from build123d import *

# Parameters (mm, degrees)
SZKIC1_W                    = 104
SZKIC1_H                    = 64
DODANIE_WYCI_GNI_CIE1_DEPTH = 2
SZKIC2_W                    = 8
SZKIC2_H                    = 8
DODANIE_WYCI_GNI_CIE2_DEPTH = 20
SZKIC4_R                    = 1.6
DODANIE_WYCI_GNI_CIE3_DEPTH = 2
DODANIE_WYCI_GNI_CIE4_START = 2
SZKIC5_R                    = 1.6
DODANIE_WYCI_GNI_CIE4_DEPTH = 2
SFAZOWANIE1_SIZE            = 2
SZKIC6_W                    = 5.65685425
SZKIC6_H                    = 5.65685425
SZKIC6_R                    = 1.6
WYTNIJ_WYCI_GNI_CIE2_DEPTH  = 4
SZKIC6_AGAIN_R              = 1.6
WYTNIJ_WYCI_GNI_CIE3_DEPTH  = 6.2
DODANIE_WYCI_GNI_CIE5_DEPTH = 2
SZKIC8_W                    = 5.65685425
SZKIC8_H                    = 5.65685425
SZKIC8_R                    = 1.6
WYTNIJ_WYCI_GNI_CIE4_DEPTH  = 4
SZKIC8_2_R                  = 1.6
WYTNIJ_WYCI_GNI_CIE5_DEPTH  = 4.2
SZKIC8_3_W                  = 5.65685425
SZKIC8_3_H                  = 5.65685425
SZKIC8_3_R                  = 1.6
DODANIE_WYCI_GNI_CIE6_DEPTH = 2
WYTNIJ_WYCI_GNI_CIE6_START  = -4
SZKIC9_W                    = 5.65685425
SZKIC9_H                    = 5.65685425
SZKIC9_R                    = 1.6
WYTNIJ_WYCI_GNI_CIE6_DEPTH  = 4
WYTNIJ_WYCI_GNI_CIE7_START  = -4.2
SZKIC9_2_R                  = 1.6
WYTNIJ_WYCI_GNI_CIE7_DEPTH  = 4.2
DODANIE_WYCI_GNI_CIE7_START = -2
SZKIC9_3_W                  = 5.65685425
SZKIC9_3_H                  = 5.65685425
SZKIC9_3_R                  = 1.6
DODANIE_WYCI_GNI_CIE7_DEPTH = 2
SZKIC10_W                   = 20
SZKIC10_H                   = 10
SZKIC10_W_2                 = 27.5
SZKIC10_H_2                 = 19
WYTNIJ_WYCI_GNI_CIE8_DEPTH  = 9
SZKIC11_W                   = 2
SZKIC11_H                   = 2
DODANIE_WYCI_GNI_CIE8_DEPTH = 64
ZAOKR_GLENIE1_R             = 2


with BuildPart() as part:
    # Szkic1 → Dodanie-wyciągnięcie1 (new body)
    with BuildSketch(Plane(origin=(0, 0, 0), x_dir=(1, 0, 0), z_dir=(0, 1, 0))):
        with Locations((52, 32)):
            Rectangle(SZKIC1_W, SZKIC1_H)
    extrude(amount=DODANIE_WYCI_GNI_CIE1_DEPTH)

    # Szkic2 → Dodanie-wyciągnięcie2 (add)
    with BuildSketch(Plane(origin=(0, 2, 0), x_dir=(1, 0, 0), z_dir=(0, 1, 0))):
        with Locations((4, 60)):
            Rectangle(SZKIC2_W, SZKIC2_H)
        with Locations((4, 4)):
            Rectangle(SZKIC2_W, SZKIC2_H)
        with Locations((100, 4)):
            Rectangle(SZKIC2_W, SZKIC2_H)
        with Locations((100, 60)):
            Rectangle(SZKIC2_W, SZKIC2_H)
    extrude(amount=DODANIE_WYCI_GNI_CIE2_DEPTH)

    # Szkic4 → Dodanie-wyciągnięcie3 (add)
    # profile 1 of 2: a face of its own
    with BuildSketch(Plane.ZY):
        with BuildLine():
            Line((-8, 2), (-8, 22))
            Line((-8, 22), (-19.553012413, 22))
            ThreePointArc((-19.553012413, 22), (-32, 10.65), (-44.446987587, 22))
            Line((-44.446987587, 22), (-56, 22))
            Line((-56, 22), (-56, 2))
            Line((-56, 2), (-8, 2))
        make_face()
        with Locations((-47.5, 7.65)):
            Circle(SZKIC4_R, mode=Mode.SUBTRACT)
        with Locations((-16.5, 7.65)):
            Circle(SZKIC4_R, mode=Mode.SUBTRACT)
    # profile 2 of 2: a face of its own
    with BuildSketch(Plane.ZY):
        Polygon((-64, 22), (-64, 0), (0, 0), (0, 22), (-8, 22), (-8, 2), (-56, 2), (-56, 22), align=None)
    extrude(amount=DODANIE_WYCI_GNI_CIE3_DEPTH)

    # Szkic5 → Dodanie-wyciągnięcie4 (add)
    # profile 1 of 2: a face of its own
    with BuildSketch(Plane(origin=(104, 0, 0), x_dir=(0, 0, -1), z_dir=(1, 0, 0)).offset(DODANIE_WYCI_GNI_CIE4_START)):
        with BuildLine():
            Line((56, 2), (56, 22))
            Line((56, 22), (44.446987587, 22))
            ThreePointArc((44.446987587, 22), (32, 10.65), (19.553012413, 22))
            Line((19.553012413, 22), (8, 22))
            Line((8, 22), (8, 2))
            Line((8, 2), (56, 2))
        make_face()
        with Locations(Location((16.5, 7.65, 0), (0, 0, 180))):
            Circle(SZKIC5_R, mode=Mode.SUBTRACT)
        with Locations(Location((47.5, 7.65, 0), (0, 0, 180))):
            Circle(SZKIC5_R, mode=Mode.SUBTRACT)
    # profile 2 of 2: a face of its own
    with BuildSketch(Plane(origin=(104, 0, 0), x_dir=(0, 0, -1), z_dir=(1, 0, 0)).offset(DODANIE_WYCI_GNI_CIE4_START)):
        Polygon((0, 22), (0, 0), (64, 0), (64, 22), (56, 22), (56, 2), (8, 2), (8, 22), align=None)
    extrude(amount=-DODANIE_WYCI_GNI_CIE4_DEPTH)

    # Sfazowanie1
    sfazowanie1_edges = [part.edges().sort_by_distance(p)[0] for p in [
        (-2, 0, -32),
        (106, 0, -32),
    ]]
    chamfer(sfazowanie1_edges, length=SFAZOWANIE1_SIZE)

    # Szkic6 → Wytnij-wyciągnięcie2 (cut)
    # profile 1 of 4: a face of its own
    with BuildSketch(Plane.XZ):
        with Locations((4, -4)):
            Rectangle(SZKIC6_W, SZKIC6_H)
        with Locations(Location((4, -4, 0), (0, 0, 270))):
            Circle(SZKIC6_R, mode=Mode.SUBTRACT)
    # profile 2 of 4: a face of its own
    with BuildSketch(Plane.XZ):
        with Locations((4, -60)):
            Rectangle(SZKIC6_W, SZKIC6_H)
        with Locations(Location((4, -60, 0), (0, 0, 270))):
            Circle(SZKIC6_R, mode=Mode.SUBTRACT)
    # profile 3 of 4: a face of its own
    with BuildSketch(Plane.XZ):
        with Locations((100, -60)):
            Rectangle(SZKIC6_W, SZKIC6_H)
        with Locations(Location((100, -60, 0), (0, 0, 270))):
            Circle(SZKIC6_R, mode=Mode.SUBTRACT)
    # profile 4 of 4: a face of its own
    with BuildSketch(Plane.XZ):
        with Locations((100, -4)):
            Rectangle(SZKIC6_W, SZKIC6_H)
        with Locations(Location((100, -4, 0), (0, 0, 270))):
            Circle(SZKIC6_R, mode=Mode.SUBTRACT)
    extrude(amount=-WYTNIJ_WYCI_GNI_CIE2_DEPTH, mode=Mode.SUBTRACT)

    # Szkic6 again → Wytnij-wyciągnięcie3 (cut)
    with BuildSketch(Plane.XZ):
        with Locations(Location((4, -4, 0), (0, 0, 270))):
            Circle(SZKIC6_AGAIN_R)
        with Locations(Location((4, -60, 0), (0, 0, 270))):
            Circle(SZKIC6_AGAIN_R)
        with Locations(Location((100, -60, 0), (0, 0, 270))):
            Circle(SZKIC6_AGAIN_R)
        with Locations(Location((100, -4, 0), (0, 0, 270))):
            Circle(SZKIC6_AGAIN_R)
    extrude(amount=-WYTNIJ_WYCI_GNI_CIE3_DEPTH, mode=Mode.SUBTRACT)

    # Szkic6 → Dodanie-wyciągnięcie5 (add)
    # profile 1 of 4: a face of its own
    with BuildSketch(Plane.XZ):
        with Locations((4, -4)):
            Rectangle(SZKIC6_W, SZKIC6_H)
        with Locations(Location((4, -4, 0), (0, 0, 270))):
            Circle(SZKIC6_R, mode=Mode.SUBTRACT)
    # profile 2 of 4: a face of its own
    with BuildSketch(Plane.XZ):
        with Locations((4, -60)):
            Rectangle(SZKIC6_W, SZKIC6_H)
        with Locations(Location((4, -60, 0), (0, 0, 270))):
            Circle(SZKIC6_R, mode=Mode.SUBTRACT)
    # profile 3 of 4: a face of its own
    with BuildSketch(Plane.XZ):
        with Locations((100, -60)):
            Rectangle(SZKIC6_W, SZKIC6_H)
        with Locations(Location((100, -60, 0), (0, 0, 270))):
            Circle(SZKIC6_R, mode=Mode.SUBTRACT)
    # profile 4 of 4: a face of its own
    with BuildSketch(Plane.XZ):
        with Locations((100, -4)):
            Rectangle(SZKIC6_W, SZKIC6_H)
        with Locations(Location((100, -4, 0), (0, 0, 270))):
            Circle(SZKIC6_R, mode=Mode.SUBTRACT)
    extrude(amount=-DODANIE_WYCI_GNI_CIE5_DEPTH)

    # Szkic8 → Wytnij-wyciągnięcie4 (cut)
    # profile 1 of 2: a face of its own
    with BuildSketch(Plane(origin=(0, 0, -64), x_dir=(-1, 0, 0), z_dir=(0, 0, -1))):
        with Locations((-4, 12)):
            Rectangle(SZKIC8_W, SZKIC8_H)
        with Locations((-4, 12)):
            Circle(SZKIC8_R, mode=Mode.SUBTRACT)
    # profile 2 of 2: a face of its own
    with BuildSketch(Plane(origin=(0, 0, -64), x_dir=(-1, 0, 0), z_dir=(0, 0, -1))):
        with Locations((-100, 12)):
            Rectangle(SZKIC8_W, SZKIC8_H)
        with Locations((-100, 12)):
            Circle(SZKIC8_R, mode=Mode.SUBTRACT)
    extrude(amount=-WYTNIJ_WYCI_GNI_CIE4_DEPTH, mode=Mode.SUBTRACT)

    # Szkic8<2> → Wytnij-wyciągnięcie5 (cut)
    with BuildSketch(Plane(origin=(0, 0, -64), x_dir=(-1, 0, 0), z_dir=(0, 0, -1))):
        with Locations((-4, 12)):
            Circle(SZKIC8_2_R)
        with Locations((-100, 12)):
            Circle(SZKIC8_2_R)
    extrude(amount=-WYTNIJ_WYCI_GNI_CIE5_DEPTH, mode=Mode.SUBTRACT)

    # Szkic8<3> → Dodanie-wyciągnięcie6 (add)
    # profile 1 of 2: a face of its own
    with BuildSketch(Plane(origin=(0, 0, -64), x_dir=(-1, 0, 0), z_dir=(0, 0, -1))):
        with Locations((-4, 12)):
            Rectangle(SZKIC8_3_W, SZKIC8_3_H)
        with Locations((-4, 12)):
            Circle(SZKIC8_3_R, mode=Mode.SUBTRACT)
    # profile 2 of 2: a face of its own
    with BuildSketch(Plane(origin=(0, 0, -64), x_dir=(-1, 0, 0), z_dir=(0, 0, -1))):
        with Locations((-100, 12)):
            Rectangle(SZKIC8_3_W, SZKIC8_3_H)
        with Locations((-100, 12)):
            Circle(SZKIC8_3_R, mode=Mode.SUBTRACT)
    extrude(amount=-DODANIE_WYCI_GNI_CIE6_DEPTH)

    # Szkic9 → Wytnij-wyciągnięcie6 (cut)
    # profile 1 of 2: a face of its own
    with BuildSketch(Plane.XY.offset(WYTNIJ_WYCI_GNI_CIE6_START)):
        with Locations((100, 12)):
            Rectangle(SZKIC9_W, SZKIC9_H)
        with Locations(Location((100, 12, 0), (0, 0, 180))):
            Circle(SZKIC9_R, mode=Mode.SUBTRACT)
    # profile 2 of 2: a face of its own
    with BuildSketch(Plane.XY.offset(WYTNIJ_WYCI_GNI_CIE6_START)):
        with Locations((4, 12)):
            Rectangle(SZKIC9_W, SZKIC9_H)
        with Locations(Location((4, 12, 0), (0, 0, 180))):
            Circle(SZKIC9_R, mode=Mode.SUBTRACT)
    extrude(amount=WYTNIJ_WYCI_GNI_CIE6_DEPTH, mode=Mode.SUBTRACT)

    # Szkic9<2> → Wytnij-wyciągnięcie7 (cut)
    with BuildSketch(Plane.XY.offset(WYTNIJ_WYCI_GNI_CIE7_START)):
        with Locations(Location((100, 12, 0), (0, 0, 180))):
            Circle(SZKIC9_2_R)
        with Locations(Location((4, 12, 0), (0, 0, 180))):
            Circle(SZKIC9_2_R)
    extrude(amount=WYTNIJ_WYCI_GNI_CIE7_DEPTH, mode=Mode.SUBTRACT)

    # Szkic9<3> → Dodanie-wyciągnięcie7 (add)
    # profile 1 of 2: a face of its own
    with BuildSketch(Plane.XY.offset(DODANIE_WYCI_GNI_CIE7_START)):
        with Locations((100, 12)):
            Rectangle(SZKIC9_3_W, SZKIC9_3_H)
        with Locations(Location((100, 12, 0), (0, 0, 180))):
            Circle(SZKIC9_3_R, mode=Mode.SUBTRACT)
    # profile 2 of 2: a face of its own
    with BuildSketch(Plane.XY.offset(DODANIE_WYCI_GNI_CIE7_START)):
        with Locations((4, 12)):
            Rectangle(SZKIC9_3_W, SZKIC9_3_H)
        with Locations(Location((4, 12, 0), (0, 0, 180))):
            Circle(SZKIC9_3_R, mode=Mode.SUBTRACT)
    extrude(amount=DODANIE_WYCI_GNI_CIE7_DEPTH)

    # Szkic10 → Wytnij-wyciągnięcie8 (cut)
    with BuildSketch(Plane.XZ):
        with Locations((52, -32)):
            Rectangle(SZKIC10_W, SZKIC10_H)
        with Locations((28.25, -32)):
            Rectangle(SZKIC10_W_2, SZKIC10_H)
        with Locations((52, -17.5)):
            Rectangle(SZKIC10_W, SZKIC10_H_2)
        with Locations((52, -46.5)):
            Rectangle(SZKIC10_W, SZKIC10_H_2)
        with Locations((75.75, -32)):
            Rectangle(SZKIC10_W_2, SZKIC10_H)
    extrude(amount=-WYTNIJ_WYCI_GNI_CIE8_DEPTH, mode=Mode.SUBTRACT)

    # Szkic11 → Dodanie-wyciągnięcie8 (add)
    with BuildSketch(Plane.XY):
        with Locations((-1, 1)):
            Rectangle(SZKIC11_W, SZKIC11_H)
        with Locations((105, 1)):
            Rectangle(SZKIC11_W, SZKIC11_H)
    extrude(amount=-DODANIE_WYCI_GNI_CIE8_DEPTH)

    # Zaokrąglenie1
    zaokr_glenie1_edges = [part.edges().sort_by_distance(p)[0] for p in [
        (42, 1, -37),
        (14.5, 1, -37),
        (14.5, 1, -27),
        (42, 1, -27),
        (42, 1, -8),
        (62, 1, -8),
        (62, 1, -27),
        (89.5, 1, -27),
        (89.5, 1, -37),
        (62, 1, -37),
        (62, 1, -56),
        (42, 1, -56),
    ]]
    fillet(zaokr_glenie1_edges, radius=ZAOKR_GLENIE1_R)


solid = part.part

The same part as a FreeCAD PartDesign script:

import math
import FreeCAD as App
import Part
import Sketcher

V = App.Vector


def edges_at(feature, points):
    """Names of the edges that pass closest to the given points."""
    edges = feature.Shape.Edges
    near = lambda p: min(range(len(edges)), key=lambda i: edges[i].distToShape(Part.Vertex(*p))[0])
    return sorted({f"Edge{near(p) + 1}" for p in points})

doc = App.newDocument("Part")
body = doc.addObject("PartDesign::Body", "Body")

# Sketch on XZ plane
sketch1 = body.newObject("Sketcher::SketchObject", "Sketch")
sketch1.AttachmentSupport = (doc.getObject("XZ_Plane"), [""])
sketch1.MapMode = "FlatFace"
sketch1.addGeometry([
    Part.LineSegment(V(0, -64, 0), V(0, 0, 0)),
    Part.LineSegment(V(0, 0, 0), V(104, 0, 0)),
    Part.LineSegment(V(104, 0, 0), V(104, -64, 0)),
    Part.LineSegment(V(104, -64, 0), V(0, -64, 0)),
], False)
sketch1.addConstraint([
    Sketcher.Constraint("Coincident", 0, 2, 1, 1),
    Sketcher.Constraint("Coincident", 1, 2, 2, 1),
    Sketcher.Constraint("Coincident", 2, 2, 3, 1),
    Sketcher.Constraint("Coincident", 3, 2, 0, 1),
    Sketcher.Constraint("Vertical", 0),
    Sketcher.Constraint("Horizontal", 1),
    Sketcher.Constraint("Vertical", 2),
    Sketcher.Constraint("Horizontal", 3),
    Sketcher.Constraint("Coincident", 0, 2, -1, 1),
    Sketcher.Constraint("DistanceX", 1, 1, 1, 2, 104.0),
    Sketcher.Constraint("DistanceY", 0, 1, 0, 2, 64.0),
])
pad1 = body.newObject("PartDesign::Pad", "Pad")
pad1.Profile = sketch1
pad1.Length = 2
pad1.Reversed = True

# Sketch on XZ plane
sketch2 = body.newObject("Sketcher::SketchObject", "Sketch001")
sketch2.AttachmentSupport = (doc.getObject("XZ_Plane"), [""])
sketch2.MapMode = "FlatFace"
sketch2.AttachmentOffset = App.Placement(V(0, 0, -2), App.Rotation())
sketch2.addGeometry([
    Part.LineSegment(V(0, -64, 0), V(0, -56, 0)),  # 0
    Part.LineSegment(V(0, -56, 0), V(8, -56, 0)),  # 1
    Part.LineSegment(V(8, -56, 0), V(8, -64, 0)),  # 2
    Part.LineSegment(V(8, -64, 0), V(0, -64, 0)),  # 3
    Part.LineSegment(V(0, -8, 0), V(0, 0, 0)),  # 4
    Part.LineSegment(V(0, 0, 0), V(8, 0, 0)),  # 5
    Part.LineSegment(V(8, 0, 0), V(8, -8, 0)),  # 6
    Part.LineSegment(V(8, -8, 0), V(0, -8, 0)),  # 7
    Part.LineSegment(V(96, -8, 0), V(96, 0, 0)),  # 8
    Part.LineSegment(V(96, 0, 0), V(104, 0, 0)),  # 9
    Part.LineSegment(V(104, 0, 0), V(104, -8, 0)),  # 10
    Part.LineSegment(V(104, -8, 0), V(96, -8, 0)),  # 11
    Part.LineSegment(V(96, -64, 0), V(96, -56, 0)),  # 12
    Part.LineSegment(V(96, -56, 0), V(104, -56, 0)),  # 13
    Part.LineSegment(V(104, -56, 0), V(104, -64, 0)),  # 14
    Part.LineSegment(V(104, -64, 0), V(96, -64, 0)),  # 15
], False)
sketch2.addConstraint([
    Sketcher.Constraint("Coincident", 0, 2, 1, 1),
    Sketcher.Constraint("Coincident", 1, 2, 2, 1),
    Sketcher.Constraint("Coincident", 2, 2, 3, 1),
    Sketcher.Constraint("Coincident", 3, 2, 0, 1),
    Sketcher.Constraint("Coincident", 4, 2, 5, 1),
    Sketcher.Constraint("Coincident", 5, 2, 6, 1),
    Sketcher.Constraint("Coincident", 6, 2, 7, 1),
    Sketcher.Constraint("Coincident", 7, 2, 4, 1),
    Sketcher.Constraint("Coincident", 8, 2, 9, 1),
    Sketcher.Constraint("Coincident", 9, 2, 10, 1),
    Sketcher.Constraint("Coincident", 10, 2, 11, 1),
    Sketcher.Constraint("Coincident", 11, 2, 8, 1),
    Sketcher.Constraint("Coincident", 12, 2, 13, 1),
    Sketcher.Constraint("Coincident", 13, 2, 14, 1),
    Sketcher.Constraint("Coincident", 14, 2, 15, 1),
    Sketcher.Constraint("Coincident", 15, 2, 12, 1),
    Sketcher.Constraint("Vertical", 0),
    Sketcher.Constraint("Horizontal", 1),
    Sketcher.Constraint("Vertical", 2),
    Sketcher.Constraint("Horizontal", 3),
    Sketcher.Constraint("Vertical", 4),
    Sketcher.Constraint("Horizontal", 5),
    Sketcher.Constraint("Vertical", 6),
    Sketcher.Constraint("Horizontal", 7),
    Sketcher.Constraint("Vertical", 8),
    Sketcher.Constraint("Horizontal", 9),
    Sketcher.Constraint("Vertical", 10),
    Sketcher.Constraint("Horizontal", 11),
    Sketcher.Constraint("Vertical", 12),
    Sketcher.Constraint("Horizontal", 13),
    Sketcher.Constraint("Vertical", 14),
    Sketcher.Constraint("Horizontal", 15),
    Sketcher.Constraint("Coincident", 4, 2, -1, 1),
    Sketcher.Constraint("PointOnObject", 0, 2, -2),
    Sketcher.Constraint("PointOnObject", 8, 2, -1),
    Sketcher.Constraint("Horizontal", 7, 2, 10, 2),
    Sketcher.Constraint("Horizontal", 1, 2, 12, 2),
    Sketcher.Constraint("Horizontal", 3, 2, 14, 2),
    Sketcher.Constraint("Vertical", 2, 2, 5, 2),
    Sketcher.Constraint("Vertical", 11, 2, 12, 2),
    Sketcher.Constraint("Vertical", 10, 2, 13, 2),
    Sketcher.Constraint("Equal", 7, 9),
    Sketcher.Constraint("Equal", 15, 0),
    Sketcher.Constraint("Equal", 2, 4),
    Sketcher.Constraint("DistanceX", 1, 1, 1, 2, 8.0),
    Sketcher.Constraint("DistanceY", 0, 2, -1, 1, 56.0),
    Sketcher.Constraint("DistanceX", -1, 1, 8, 2, 96.0),
])
pad2 = body.newObject("PartDesign::Pad", "Pad001")
pad2.Profile = sketch2
pad2.Length = 20
pad2.Reversed = True

# Sketch on YZ plane
sketch3 = body.newObject("Sketcher::SketchObject", "Sketch002")
sketch3.AttachmentSupport = (doc.getObject("YZ_Plane"), [""])
sketch3.MapMode = "FlatFace"
sketch3.addGeometry([
    Part.ArcOfCircle(Part.Circle(V(23.1, -32, 0), V(0, 0, 1), 12.5), math.radians(95), math.radians(265)),  # 0
    Part.LineSegment(V(22, -44.4, 0), V(22, -64, 0)),  # 1
    Part.LineSegment(V(22, -64, 0), V(0, -64, 0)),  # 2
    Part.LineSegment(V(0, -64, 0), V(0, 0, 0)),  # 3
    Part.LineSegment(V(0, 0, 0), V(22, 0, 0)),  # 4
    Part.LineSegment(V(22, 0, 0), V(22, -19.6, 0)),  # 5
    Part.Circle(V(7.7, -47.5, 0), V(0, 0, 1), 1.6),  # 6
    Part.Circle(V(7.7, -16.5, 0), V(0, 0, 1), 1.6),  # 7
], False)
sketch3.addConstraint([
    Sketcher.Constraint("Coincident", 0, 2, 1, 1),
    Sketcher.Constraint("Coincident", 1, 2, 2, 1),
    Sketcher.Constraint("Coincident", 2, 2, 3, 1),
    Sketcher.Constraint("Coincident", 3, 2, 4, 1),
    Sketcher.Constraint("Coincident", 4, 2, 5, 1),
    Sketcher.Constraint("Coincident", 5, 2, 0, 1),
    Sketcher.Constraint("Vertical", 1),
    Sketcher.Constraint("Horizontal", 2),
    Sketcher.Constraint("Vertical", 3),
    Sketcher.Constraint("Horizontal", 4),
    Sketcher.Constraint("Vertical", 5),
    Sketcher.Constraint("Coincident", 3, 2, -1, 1),
    Sketcher.Constraint("Equal", 6, 7),
    Sketcher.Constraint("Vertical", 6, 3, 7, 3),
    Sketcher.Constraint("Vertical", 1, 2, 4, 2),
    Sketcher.Constraint("Equal", 1, 5),
    Sketcher.Constraint("Diameter", 6, 3.2),
    Sketcher.Constraint("Radius", 0, 12.5),
    Sketcher.Constraint("DistanceX", 2, 2, 2, 1, 22.0),
    Sketcher.Constraint("DistanceY", 3, 1, 3, 2, 64.0),
    Sketcher.Constraint("DistanceY", 6, 3, 7, 3, 31.0),
    Sketcher.Constraint("DistanceY", 6, 3, -1, 1, 47.5),
    Sketcher.Constraint("DistanceX", 6, 3, 0, 3, 15.5),
    Sketcher.Constraint("DistanceX", -1, 1, 0, 3, 23.15),
])
pad3 = body.newObject("PartDesign::Pad", "Pad002")
pad3.Profile = sketch3
pad3.Length = 2
pad3.Reversed = True

# Sketch on YZ plane
sketch4 = body.newObject("Sketcher::SketchObject", "Sketch003")
sketch4.AttachmentSupport = (doc.getObject("YZ_Plane"), [""])
sketch4.MapMode = "FlatFace"
sketch4.AttachmentOffset = App.Placement(V(0, 0, 106), App.Rotation())
sketch4.addGeometry([
    Part.ArcOfCircle(Part.Circle(V(23.1, -32, 0), V(0, 0, 1), 12.5), math.radians(95), math.radians(265)),  # 0
    Part.LineSegment(V(22, -19.6, 0), V(22, 0, 0)),  # 1
    Part.LineSegment(V(22, 0, 0), V(0, 0, 0)),  # 2
    Part.LineSegment(V(0, 0, 0), V(0, -64, 0)),  # 3
    Part.LineSegment(V(0, -64, 0), V(22, -64, 0)),  # 4
    Part.LineSegment(V(22, -64, 0), V(22, -44.4, 0)),  # 5
    Part.Circle(V(7.7, -16.5, 0), V(0, 0, 1), 1.6),  # 6
    Part.Circle(V(7.7, -47.5, 0), V(0, 0, 1), 1.6),  # 7
], False)
sketch4.addConstraint([
    Sketcher.Constraint("Coincident", 0, 1, 1, 1),
    Sketcher.Constraint("Coincident", 1, 2, 2, 1),
    Sketcher.Constraint("Coincident", 2, 2, 3, 1),
    Sketcher.Constraint("Coincident", 3, 2, 4, 1),
    Sketcher.Constraint("Coincident", 4, 2, 5, 1),
    Sketcher.Constraint("Coincident", 5, 2, 0, 2),
    Sketcher.Constraint("Vertical", 1),
    Sketcher.Constraint("Horizontal", 2),
    Sketcher.Constraint("Vertical", 3),
    Sketcher.Constraint("Horizontal", 4),
    Sketcher.Constraint("Vertical", 5),
    Sketcher.Constraint("Coincident", 2, 2, -1, 1),
    Sketcher.Constraint("Equal", 6, 7),
    Sketcher.Constraint("Vertical", 6, 3, 7, 3),
    Sketcher.Constraint("Vertical", 1, 2, 4, 2),
    Sketcher.Constraint("Equal", 1, 5),
    Sketcher.Constraint("Diameter", 6, 3.2),
    Sketcher.Constraint("Radius", 0, 12.5),
    Sketcher.Constraint("DistanceX", 2, 2, 2, 1, 22.0),
    Sketcher.Constraint("DistanceY", 3, 2, 3, 1, 64.0),
    Sketcher.Constraint("DistanceY", 7, 3, 6, 3, 31.0),
    Sketcher.Constraint("DistanceY", 6, 3, -1, 1, 16.5),
    Sketcher.Constraint("DistanceX", 6, 3, 0, 3, 15.5),
    Sketcher.Constraint("DistanceX", -1, 1, 0, 3, 23.15),
])
pad4 = body.newObject("PartDesign::Pad", "Pad003")
pad4.Profile = sketch4
pad4.Length = 2
pad4.Reversed = True
doc.recompute()

chamfer = body.newObject("PartDesign::Chamfer", "Chamfer")
chamfer.Base = (pad4, edges_at(pad4, [(-2, 0, -32), (106, 0, -32)]))
chamfer.Size = 2

# Sketch on XZ plane
sketch5 = body.newObject("Sketcher::SketchObject", "Sketch004")
sketch5.AttachmentSupport = (doc.getObject("XZ_Plane"), [""])
sketch5.MapMode = "FlatFace"
sketch5.addGeometry([
    Part.LineSegment(V(1.2, -1.2, 0), V(1.2, -6.8, 0)),  # 0
    Part.LineSegment(V(1.2, -6.8, 0), V(6.8, -6.8, 0)),  # 1
    Part.LineSegment(V(6.8, -6.8, 0), V(6.8, -1.2, 0)),  # 2
    Part.LineSegment(V(6.8, -1.2, 0), V(1.2, -1.2, 0)),  # 3
    Part.Circle(V(4, -4, 0), V(0, 0, 1), 1.6),  # 4
    Part.LineSegment(V(1.2, -57.2, 0), V(1.2, -62.8, 0)),  # 5
    Part.LineSegment(V(1.2, -62.8, 0), V(6.8, -62.8, 0)),  # 6
    Part.LineSegment(V(6.8, -62.8, 0), V(6.8, -57.2, 0)),  # 7
    Part.LineSegment(V(6.8, -57.2, 0), V(1.2, -57.2, 0)),  # 8
    Part.Circle(V(4, -60, 0), V(0, 0, 1), 1.6),  # 9
    Part.LineSegment(V(97.2, -57.2, 0), V(97.2, -62.8, 0)),  # 10
    Part.LineSegment(V(97.2, -62.8, 0), V(102.8, -62.8, 0)),  # 11
    Part.LineSegment(V(102.8, -62.8, 0), V(102.8, -57.2, 0)),  # 12
    Part.LineSegment(V(102.8, -57.2, 0), V(97.2, -57.2, 0)),  # 13
    Part.Circle(V(100, -60, 0), V(0, 0, 1), 1.6),  # 14
    Part.LineSegment(V(97.2, -1.2, 0), V(97.2, -6.8, 0)),  # 15
    Part.LineSegment(V(97.2, -6.8, 0), V(102.8, -6.8, 0)),  # 16
    Part.LineSegment(V(102.8, -6.8, 0), V(102.8, -1.2, 0)),  # 17
    Part.LineSegment(V(102.8, -1.2, 0), V(97.2, -1.2, 0)),  # 18
    Part.Circle(V(100, -4, 0), V(0, 0, 1), 1.6),  # 19
], False)
sketch5.addConstraint([
    Sketcher.Constraint("Coincident", 0, 2, 1, 1),
    Sketcher.Constraint("Coincident", 1, 2, 2, 1),
    Sketcher.Constraint("Coincident", 2, 2, 3, 1),
    Sketcher.Constraint("Coincident", 3, 2, 0, 1),
    Sketcher.Constraint("Coincident", 5, 2, 6, 1),
    Sketcher.Constraint("Coincident", 6, 2, 7, 1),
    Sketcher.Constraint("Coincident", 7, 2, 8, 1),
    Sketcher.Constraint("Coincident", 8, 2, 5, 1),
    Sketcher.Constraint("Coincident", 10, 2, 11, 1),
    Sketcher.Constraint("Coincident", 11, 2, 12, 1),
    Sketcher.Constraint("Coincident", 12, 2, 13, 1),
    Sketcher.Constraint("Coincident", 13, 2, 10, 1),
    Sketcher.Constraint("Coincident", 15, 2, 16, 1),
    Sketcher.Constraint("Coincident", 16, 2, 17, 1),
    Sketcher.Constraint("Coincident", 17, 2, 18, 1),
    Sketcher.Constraint("Coincident", 18, 2, 15, 1),
    Sketcher.Constraint("Vertical", 0),
    Sketcher.Constraint("Horizontal", 1),
    Sketcher.Constraint("Vertical", 2),
    Sketcher.Constraint("Horizontal", 3),
    Sketcher.Constraint("Vertical", 5),
    Sketcher.Constraint("Horizontal", 6),
    Sketcher.Constraint("Vertical", 7),
    Sketcher.Constraint("Horizontal", 8),
    Sketcher.Constraint("Vertical", 10),
    Sketcher.Constraint("Horizontal", 11),
    Sketcher.Constraint("Vertical", 12),
    Sketcher.Constraint("Horizontal", 13),
    Sketcher.Constraint("Vertical", 15),
    Sketcher.Constraint("Horizontal", 16),
    Sketcher.Constraint("Vertical", 17),
    Sketcher.Constraint("Horizontal", 18),
    Sketcher.Constraint("Equal", 4, 9),
    Sketcher.Constraint("Equal", 9, 14),
    Sketcher.Constraint("Equal", 14, 19),
    Sketcher.Constraint("Horizontal", 9, 3, 14, 3),
    Sketcher.Constraint("Horizontal", 4, 3, 19, 3),
    Sketcher.Constraint("Horizontal", 6, 2, 10, 2),
    Sketcher.Constraint("Horizontal", 8, 2, 12, 2),
    Sketcher.Constraint("Horizontal", 1, 2, 15, 2),
    Sketcher.Constraint("Horizontal", 3, 2, 17, 2),
    Sketcher.Constraint("Vertical", 4, 3, 9, 3),
    Sketcher.Constraint("Vertical", 14, 3, 19, 3),
    Sketcher.Constraint("Vertical", 3, 2, 5, 2),
    Sketcher.Constraint("Vertical", 2, 2, 6, 2),
    Sketcher.Constraint("Vertical", 13, 2, 15, 2),
    Sketcher.Constraint("Vertical", 12, 2, 16, 2),
    Sketcher.Constraint("Equal", 8, 11),
    Sketcher.Constraint("Equal", 18, 0),
    Sketcher.Constraint("Equal", 2, 5),
    Sketcher.Constraint("Diameter", 4, 3.2),
    Sketcher.Constraint("DistanceX", -1, 1, 4, 3, 4.0),
    Sketcher.Constraint("DistanceY", 4, 3, -1, 1, 4.0),
    Sketcher.Constraint("DistanceY", 9, 3, -1, 1, 60.0),
    Sketcher.Constraint("DistanceX", -1, 1, 14, 3, 100.0),
    Sketcher.Constraint("DistanceY", 5, 2, 0, 2, 56.0),
    Sketcher.Constraint("DistanceX", 6, 2, 11, 2, 96.0),
    Sketcher.Constraint("DistanceX", 1, 1, 1, 2, 5.656854),
    Sketcher.Constraint("DistanceX", -1, 1, 0, 2, 1.171573),
    Sketcher.Constraint("DistanceY", 0, 2, -1, 1, 6.828427),
])
pocket1 = body.newObject("PartDesign::Pocket", "Pocket")
pocket1.Profile = sketch5
pocket1.Length = 4

# Sketch on XZ plane
sketch6 = body.newObject("Sketcher::SketchObject", "Sketch005")
sketch6.AttachmentSupport = (doc.getObject("XZ_Plane"), [""])
sketch6.MapMode = "FlatFace"
sketch6.addGeometry([
    Part.Circle(V(4, -4, 0), V(0, 0, 1), 1.6),
    Part.Circle(V(4, -60, 0), V(0, 0, 1), 1.6),
    Part.Circle(V(100, -60, 0), V(0, 0, 1), 1.6),
    Part.Circle(V(100, -4, 0), V(0, 0, 1), 1.6),
], False)
sketch6.addConstraint([
    Sketcher.Constraint("Equal", 0, 1),
    Sketcher.Constraint("Equal", 1, 2),
    Sketcher.Constraint("Equal", 2, 3),
    Sketcher.Constraint("Horizontal", 1, 3, 2, 3),
    Sketcher.Constraint("Horizontal", 0, 3, 3, 3),
    Sketcher.Constraint("Vertical", 0, 3, 1, 3),
    Sketcher.Constraint("Vertical", 2, 3, 3, 3),
    Sketcher.Constraint("Diameter", 0, 3.2),
    Sketcher.Constraint("DistanceX", -1, 1, 0, 3, 4.0),
    Sketcher.Constraint("DistanceY", 0, 3, -1, 1, 4.0),
    Sketcher.Constraint("DistanceY", 1, 3, -1, 1, 60.0),
    Sketcher.Constraint("DistanceX", -1, 1, 2, 3, 100.0),
])
pocket2 = body.newObject("PartDesign::Pocket", "Pocket001")
pocket2.Profile = sketch6
pocket2.Length = 6.2

# Sketch on XZ plane
sketch7 = body.newObject("Sketcher::SketchObject", "Sketch006")
sketch7.AttachmentSupport = (doc.getObject("XZ_Plane"), [""])
sketch7.MapMode = "FlatFace"
sketch7.addGeometry([
    Part.LineSegment(V(1.2, -1.2, 0), V(1.2, -6.8, 0)),  # 0
    Part.LineSegment(V(1.2, -6.8, 0), V(6.8, -6.8, 0)),  # 1
    Part.LineSegment(V(6.8, -6.8, 0), V(6.8, -1.2, 0)),  # 2
    Part.LineSegment(V(6.8, -1.2, 0), V(1.2, -1.2, 0)),  # 3
    Part.Circle(V(4, -4, 0), V(0, 0, 1), 1.6),  # 4
    Part.LineSegment(V(1.2, -57.2, 0), V(1.2, -62.8, 0)),  # 5
    Part.LineSegment(V(1.2, -62.8, 0), V(6.8, -62.8, 0)),  # 6
    Part.LineSegment(V(6.8, -62.8, 0), V(6.8, -57.2, 0)),  # 7
    Part.LineSegment(V(6.8, -57.2, 0), V(1.2, -57.2, 0)),  # 8
    Part.Circle(V(4, -60, 0), V(0, 0, 1), 1.6),  # 9
    Part.LineSegment(V(97.2, -57.2, 0), V(97.2, -62.8, 0)),  # 10
    Part.LineSegment(V(97.2, -62.8, 0), V(102.8, -62.8, 0)),  # 11
    Part.LineSegment(V(102.8, -62.8, 0), V(102.8, -57.2, 0)),  # 12
    Part.LineSegment(V(102.8, -57.2, 0), V(97.2, -57.2, 0)),  # 13
    Part.Circle(V(100, -60, 0), V(0, 0, 1), 1.6),  # 14
    Part.LineSegment(V(97.2, -1.2, 0), V(97.2, -6.8, 0)),  # 15
    Part.LineSegment(V(97.2, -6.8, 0), V(102.8, -6.8, 0)),  # 16
    Part.LineSegment(V(102.8, -6.8, 0), V(102.8, -1.2, 0)),  # 17
    Part.LineSegment(V(102.8, -1.2, 0), V(97.2, -1.2, 0)),  # 18
    Part.Circle(V(100, -4, 0), V(0, 0, 1), 1.6),  # 19
], False)
sketch7.addConstraint([
    Sketcher.Constraint("Coincident", 0, 2, 1, 1),
    Sketcher.Constraint("Coincident", 1, 2, 2, 1),
    Sketcher.Constraint("Coincident", 2, 2, 3, 1),
    Sketcher.Constraint("Coincident", 3, 2, 0, 1),
    Sketcher.Constraint("Coincident", 5, 2, 6, 1),
    Sketcher.Constraint("Coincident", 6, 2, 7, 1),
    Sketcher.Constraint("Coincident", 7, 2, 8, 1),
    Sketcher.Constraint("Coincident", 8, 2, 5, 1),
    Sketcher.Constraint("Coincident", 10, 2, 11, 1),
    Sketcher.Constraint("Coincident", 11, 2, 12, 1),
    Sketcher.Constraint("Coincident", 12, 2, 13, 1),
    Sketcher.Constraint("Coincident", 13, 2, 10, 1),
    Sketcher.Constraint("Coincident", 15, 2, 16, 1),
    Sketcher.Constraint("Coincident", 16, 2, 17, 1),
    Sketcher.Constraint("Coincident", 17, 2, 18, 1),
    Sketcher.Constraint("Coincident", 18, 2, 15, 1),
    Sketcher.Constraint("Vertical", 0),
    Sketcher.Constraint("Horizontal", 1),
    Sketcher.Constraint("Vertical", 2),
    Sketcher.Constraint("Horizontal", 3),
    Sketcher.Constraint("Vertical", 5),
    Sketcher.Constraint("Horizontal", 6),
    Sketcher.Constraint("Vertical", 7),
    Sketcher.Constraint("Horizontal", 8),
    Sketcher.Constraint("Vertical", 10),
    Sketcher.Constraint("Horizontal", 11),
    Sketcher.Constraint("Vertical", 12),
    Sketcher.Constraint("Horizontal", 13),
    Sketcher.Constraint("Vertical", 15),
    Sketcher.Constraint("Horizontal", 16),
    Sketcher.Constraint("Vertical", 17),
    Sketcher.Constraint("Horizontal", 18),
    Sketcher.Constraint("Equal", 4, 9),
    Sketcher.Constraint("Equal", 9, 14),
    Sketcher.Constraint("Equal", 14, 19),
    Sketcher.Constraint("Horizontal", 9, 3, 14, 3),
    Sketcher.Constraint("Horizontal", 4, 3, 19, 3),
    Sketcher.Constraint("Horizontal", 6, 2, 10, 2),
    Sketcher.Constraint("Horizontal", 8, 2, 12, 2),
    Sketcher.Constraint("Horizontal", 1, 2, 15, 2),
    Sketcher.Constraint("Horizontal", 3, 2, 17, 2),
    Sketcher.Constraint("Vertical", 4, 3, 9, 3),
    Sketcher.Constraint("Vertical", 14, 3, 19, 3),
    Sketcher.Constraint("Vertical", 3, 2, 5, 2),
    Sketcher.Constraint("Vertical", 2, 2, 6, 2),
    Sketcher.Constraint("Vertical", 13, 2, 15, 2),
    Sketcher.Constraint("Vertical", 12, 2, 16, 2),
    Sketcher.Constraint("Equal", 8, 11),
    Sketcher.Constraint("Equal", 18, 0),
    Sketcher.Constraint("Equal", 2, 5),
    Sketcher.Constraint("Diameter", 4, 3.2),
    Sketcher.Constraint("DistanceX", -1, 1, 4, 3, 4.0),
    Sketcher.Constraint("DistanceY", 4, 3, -1, 1, 4.0),
    Sketcher.Constraint("DistanceY", 9, 3, -1, 1, 60.0),
    Sketcher.Constraint("DistanceX", -1, 1, 14, 3, 100.0),
    Sketcher.Constraint("DistanceY", 5, 2, 0, 2, 56.0),
    Sketcher.Constraint("DistanceX", 6, 2, 11, 2, 96.0),
    Sketcher.Constraint("DistanceX", 1, 1, 1, 2, 5.656854),
    Sketcher.Constraint("DistanceX", -1, 1, 0, 2, 1.171573),
    Sketcher.Constraint("DistanceY", 0, 2, -1, 1, 6.828427),
])
pad5 = body.newObject("PartDesign::Pad", "Pad004")
pad5.Profile = sketch7
pad5.Length = 2
pad5.Reversed = True

# Sketch on XY plane
sketch8 = body.newObject("Sketcher::SketchObject", "Sketch007")
sketch8.AttachmentSupport = (doc.getObject("XY_Plane"), [""])
sketch8.MapMode = "FlatFace"
sketch8.AttachmentOffset = App.Placement(V(0, 0, -64), App.Rotation())
sketch8.addGeometry([
    Part.LineSegment(V(6.8, 14.8, 0), V(6.8, 9.2, 0)),  # 0
    Part.LineSegment(V(6.8, 9.2, 0), V(1.2, 9.2, 0)),  # 1
    Part.LineSegment(V(1.2, 9.2, 0), V(1.2, 14.8, 0)),  # 2
    Part.LineSegment(V(1.2, 14.8, 0), V(6.8, 14.8, 0)),  # 3
    Part.Circle(V(4, 12, 0), V(0, 0, 1), 1.6),  # 4
    Part.LineSegment(V(102.8, 14.8, 0), V(102.8, 9.2, 0)),  # 5
    Part.LineSegment(V(102.8, 9.2, 0), V(97.2, 9.2, 0)),  # 6
    Part.LineSegment(V(97.2, 9.2, 0), V(97.2, 14.8, 0)),  # 7
    Part.LineSegment(V(97.2, 14.8, 0), V(102.8, 14.8, 0)),  # 8
    Part.Circle(V(100, 12, 0), V(0, 0, 1), 1.6),  # 9
], False)
sketch8.addConstraint([
    Sketcher.Constraint("Coincident", 0, 2, 1, 1),
    Sketcher.Constraint("Coincident", 1, 2, 2, 1),
    Sketcher.Constraint("Coincident", 2, 2, 3, 1),
    Sketcher.Constraint("Coincident", 3, 2, 0, 1),
    Sketcher.Constraint("Coincident", 5, 2, 6, 1),
    Sketcher.Constraint("Coincident", 6, 2, 7, 1),
    Sketcher.Constraint("Coincident", 7, 2, 8, 1),
    Sketcher.Constraint("Coincident", 8, 2, 5, 1),
    Sketcher.Constraint("Vertical", 0),
    Sketcher.Constraint("Horizontal", 1),
    Sketcher.Constraint("Vertical", 2),
    Sketcher.Constraint("Horizontal", 3),
    Sketcher.Constraint("Vertical", 5),
    Sketcher.Constraint("Horizontal", 6),
    Sketcher.Constraint("Vertical", 7),
    Sketcher.Constraint("Horizontal", 8),
    Sketcher.Constraint("Equal", 4, 9),
    Sketcher.Constraint("Horizontal", 4, 3, 9, 3),
    Sketcher.Constraint("Horizontal", 1, 2, 5, 2),
    Sketcher.Constraint("Horizontal", 3, 2, 7, 2),
    Sketcher.Constraint("Equal", 3, 6),
    Sketcher.Constraint("Equal", 8, 0),
    Sketcher.Constraint("Diameter", 4, 3.2),
    Sketcher.Constraint("DistanceX", -1, 1, 4, 3, 4.0),
    Sketcher.Constraint("DistanceY", -1, 1, 4, 3, 12.0),
    Sketcher.Constraint("DistanceX", -1, 1, 9, 3, 100.0),
    Sketcher.Constraint("DistanceX", 0, 2, 5, 2, 96.0),
    Sketcher.Constraint("DistanceX", 1, 2, 1, 1, 5.656854),
    Sketcher.Constraint("DistanceX", -1, 1, 0, 2, 6.828427),
    Sketcher.Constraint("DistanceY", -1, 1, 0, 2, 9.171573),
])
pocket3 = body.newObject("PartDesign::Pocket", "Pocket002")
pocket3.Profile = sketch8
pocket3.Length = 4
pocket3.Reversed = True

# Sketch on XY plane
sketch9 = body.newObject("Sketcher::SketchObject", "Sketch008")
sketch9.AttachmentSupport = (doc.getObject("XY_Plane"), [""])
sketch9.MapMode = "FlatFace"
sketch9.AttachmentOffset = App.Placement(V(0, 0, -64), App.Rotation())
sketch9.addGeometry([
    Part.Circle(V(4, 12, 0), V(0, 0, 1), 1.6),
    Part.Circle(V(100, 12, 0), V(0, 0, 1), 1.6),
], False)
sketch9.addConstraint([
    Sketcher.Constraint("Equal", 0, 1),
    Sketcher.Constraint("Horizontal", 0, 3, 1, 3),
    Sketcher.Constraint("Diameter", 0, 3.2),
    Sketcher.Constraint("DistanceX", -1, 1, 0, 3, 4.0),
    Sketcher.Constraint("DistanceY", -1, 1, 0, 3, 12.0),
    Sketcher.Constraint("DistanceX", -1, 1, 1, 3, 100.0),
])
pocket4 = body.newObject("PartDesign::Pocket", "Pocket003")
pocket4.Profile = sketch9
pocket4.Length = 4.2
pocket4.Reversed = True

# Sketch on XY plane
sketch10 = body.newObject("Sketcher::SketchObject", "Sketch009")
sketch10.AttachmentSupport = (doc.getObject("XY_Plane"), [""])
sketch10.MapMode = "FlatFace"
sketch10.AttachmentOffset = App.Placement(V(0, 0, -64), App.Rotation())
sketch10.addGeometry([
    Part.LineSegment(V(6.8, 14.8, 0), V(6.8, 9.2, 0)),  # 0
    Part.LineSegment(V(6.8, 9.2, 0), V(1.2, 9.2, 0)),  # 1
    Part.LineSegment(V(1.2, 9.2, 0), V(1.2, 14.8, 0)),  # 2
    Part.LineSegment(V(1.2, 14.8, 0), V(6.8, 14.8, 0)),  # 3
    Part.Circle(V(4, 12, 0), V(0, 0, 1), 1.6),  # 4
    Part.LineSegment(V(102.8, 14.8, 0), V(102.8, 9.2, 0)),  # 5
    Part.LineSegment(V(102.8, 9.2, 0), V(97.2, 9.2, 0)),  # 6
    Part.LineSegment(V(97.2, 9.2, 0), V(97.2, 14.8, 0)),  # 7
    Part.LineSegment(V(97.2, 14.8, 0), V(102.8, 14.8, 0)),  # 8
    Part.Circle(V(100, 12, 0), V(0, 0, 1), 1.6),  # 9
], False)
sketch10.addConstraint([
    Sketcher.Constraint("Coincident", 0, 2, 1, 1),
    Sketcher.Constraint("Coincident", 1, 2, 2, 1),
    Sketcher.Constraint("Coincident", 2, 2, 3, 1),
    Sketcher.Constraint("Coincident", 3, 2, 0, 1),
    Sketcher.Constraint("Coincident", 5, 2, 6, 1),
    Sketcher.Constraint("Coincident", 6, 2, 7, 1),
    Sketcher.Constraint("Coincident", 7, 2, 8, 1),
    Sketcher.Constraint("Coincident", 8, 2, 5, 1),
    Sketcher.Constraint("Vertical", 0),
    Sketcher.Constraint("Horizontal", 1),
    Sketcher.Constraint("Vertical", 2),
    Sketcher.Constraint("Horizontal", 3),
    Sketcher.Constraint("Vertical", 5),
    Sketcher.Constraint("Horizontal", 6),
    Sketcher.Constraint("Vertical", 7),
    Sketcher.Constraint("Horizontal", 8),
    Sketcher.Constraint("Equal", 4, 9),
    Sketcher.Constraint("Horizontal", 4, 3, 9, 3),
    Sketcher.Constraint("Horizontal", 1, 2, 5, 2),
    Sketcher.Constraint("Horizontal", 3, 2, 7, 2),
    Sketcher.Constraint("Equal", 3, 6),
    Sketcher.Constraint("Equal", 8, 0),
    Sketcher.Constraint("Diameter", 4, 3.2),
    Sketcher.Constraint("DistanceX", -1, 1, 4, 3, 4.0),
    Sketcher.Constraint("DistanceY", -1, 1, 4, 3, 12.0),
    Sketcher.Constraint("DistanceX", -1, 1, 9, 3, 100.0),
    Sketcher.Constraint("DistanceX", 0, 2, 5, 2, 96.0),
    Sketcher.Constraint("DistanceX", 1, 2, 1, 1, 5.656854),
    Sketcher.Constraint("DistanceX", -1, 1, 0, 2, 6.828427),
    Sketcher.Constraint("DistanceY", -1, 1, 0, 2, 9.171573),
])
pad6 = body.newObject("PartDesign::Pad", "Pad005")
pad6.Profile = sketch10
pad6.Length = 2

# Sketch on XY plane
sketch11 = body.newObject("Sketcher::SketchObject", "Sketch010")
sketch11.AttachmentSupport = (doc.getObject("XY_Plane"), [""])
sketch11.MapMode = "FlatFace"
sketch11.AttachmentOffset = App.Placement(V(0, 0, -4), App.Rotation())
sketch11.addGeometry([
    Part.LineSegment(V(97.2, 14.8, 0), V(97.2, 9.2, 0)),  # 0
    Part.LineSegment(V(97.2, 9.2, 0), V(102.8, 9.2, 0)),  # 1
    Part.LineSegment(V(102.8, 9.2, 0), V(102.8, 14.8, 0)),  # 2
    Part.LineSegment(V(102.8, 14.8, 0), V(97.2, 14.8, 0)),  # 3
    Part.Circle(V(100, 12, 0), V(0, 0, 1), 1.6),  # 4
    Part.LineSegment(V(1.2, 14.8, 0), V(1.2, 9.2, 0)),  # 5
    Part.LineSegment(V(1.2, 9.2, 0), V(6.8, 9.2, 0)),  # 6
    Part.LineSegment(V(6.8, 9.2, 0), V(6.8, 14.8, 0)),  # 7
    Part.LineSegment(V(6.8, 14.8, 0), V(1.2, 14.8, 0)),  # 8
    Part.Circle(V(4, 12, 0), V(0, 0, 1), 1.6),  # 9
], False)
sketch11.addConstraint([
    Sketcher.Constraint("Coincident", 0, 2, 1, 1),
    Sketcher.Constraint("Coincident", 1, 2, 2, 1),
    Sketcher.Constraint("Coincident", 2, 2, 3, 1),
    Sketcher.Constraint("Coincident", 3, 2, 0, 1),
    Sketcher.Constraint("Coincident", 5, 2, 6, 1),
    Sketcher.Constraint("Coincident", 6, 2, 7, 1),
    Sketcher.Constraint("Coincident", 7, 2, 8, 1),
    Sketcher.Constraint("Coincident", 8, 2, 5, 1),
    Sketcher.Constraint("Vertical", 0),
    Sketcher.Constraint("Horizontal", 1),
    Sketcher.Constraint("Vertical", 2),
    Sketcher.Constraint("Horizontal", 3),
    Sketcher.Constraint("Vertical", 5),
    Sketcher.Constraint("Horizontal", 6),
    Sketcher.Constraint("Vertical", 7),
    Sketcher.Constraint("Horizontal", 8),
    Sketcher.Constraint("Equal", 4, 9),
    Sketcher.Constraint("Horizontal", 4, 3, 9, 3),
    Sketcher.Constraint("Horizontal", 1, 2, 5, 2),
    Sketcher.Constraint("Horizontal", 3, 2, 7, 2),
    Sketcher.Constraint("Equal", 3, 6),
    Sketcher.Constraint("Equal", 8, 0),
    Sketcher.Constraint("Diameter", 4, 3.2),
    Sketcher.Constraint("DistanceX", -1, 1, 4, 3, 100.0),
    Sketcher.Constraint("DistanceY", -1, 1, 4, 3, 12.0),
    Sketcher.Constraint("DistanceX", -1, 1, 9, 3, 4.0),
    Sketcher.Constraint("DistanceX", 5, 2, 0, 2, 96.0),
    Sketcher.Constraint("DistanceX", 1, 1, 1, 2, 5.656854),
    Sketcher.Constraint("DistanceX", -1, 1, 0, 2, 97.171573),
    Sketcher.Constraint("DistanceY", -1, 1, 0, 2, 9.171573),
])
pocket5 = body.newObject("PartDesign::Pocket", "Pocket004")
pocket5.Profile = sketch11
pocket5.Length = 4
pocket5.Reversed = True

# Sketch on XY plane
sketch12 = body.newObject("Sketcher::SketchObject", "Sketch011")
sketch12.AttachmentSupport = (doc.getObject("XY_Plane"), [""])
sketch12.MapMode = "FlatFace"
sketch12.AttachmentOffset = App.Placement(V(0, 0, -4.2), App.Rotation())
sketch12.addGeometry([
    Part.Circle(V(100, 12, 0), V(0, 0, 1), 1.6),
    Part.Circle(V(4, 12, 0), V(0, 0, 1), 1.6),
], False)
sketch12.addConstraint([
    Sketcher.Constraint("Equal", 0, 1),
    Sketcher.Constraint("Horizontal", 0, 3, 1, 3),
    Sketcher.Constraint("Diameter", 0, 3.2),
    Sketcher.Constraint("DistanceX", -1, 1, 0, 3, 100.0),
    Sketcher.Constraint("DistanceY", -1, 1, 0, 3, 12.0),
    Sketcher.Constraint("DistanceX", -1, 1, 1, 3, 4.0),
])
pocket6 = body.newObject("PartDesign::Pocket", "Pocket005")
pocket6.Profile = sketch12
pocket6.Length = 4.2
pocket6.Reversed = True

# Sketch on XY plane
sketch13 = body.newObject("Sketcher::SketchObject", "Sketch012")
sketch13.AttachmentSupport = (doc.getObject("XY_Plane"), [""])
sketch13.MapMode = "FlatFace"
sketch13.AttachmentOffset = App.Placement(V(0, 0, -2), App.Rotation())
sketch13.addGeometry([
    Part.LineSegment(V(97.2, 14.8, 0), V(97.2, 9.2, 0)),  # 0
    Part.LineSegment(V(97.2, 9.2, 0), V(102.8, 9.2, 0)),  # 1
    Part.LineSegment(V(102.8, 9.2, 0), V(102.8, 14.8, 0)),  # 2
    Part.LineSegment(V(102.8, 14.8, 0), V(97.2, 14.8, 0)),  # 3
    Part.Circle(V(100, 12, 0), V(0, 0, 1), 1.6),  # 4
    Part.LineSegment(V(1.2, 14.8, 0), V(1.2, 9.2, 0)),  # 5
    Part.LineSegment(V(1.2, 9.2, 0), V(6.8, 9.2, 0)),  # 6
    Part.LineSegment(V(6.8, 9.2, 0), V(6.8, 14.8, 0)),  # 7
    Part.LineSegment(V(6.8, 14.8, 0), V(1.2, 14.8, 0)),  # 8
    Part.Circle(V(4, 12, 0), V(0, 0, 1), 1.6),  # 9
], False)
sketch13.addConstraint([
    Sketcher.Constraint("Coincident", 0, 2, 1, 1),
    Sketcher.Constraint("Coincident", 1, 2, 2, 1),
    Sketcher.Constraint("Coincident", 2, 2, 3, 1),
    Sketcher.Constraint("Coincident", 3, 2, 0, 1),
    Sketcher.Constraint("Coincident", 5, 2, 6, 1),
    Sketcher.Constraint("Coincident", 6, 2, 7, 1),
    Sketcher.Constraint("Coincident", 7, 2, 8, 1),
    Sketcher.Constraint("Coincident", 8, 2, 5, 1),
    Sketcher.Constraint("Vertical", 0),
    Sketcher.Constraint("Horizontal", 1),
    Sketcher.Constraint("Vertical", 2),
    Sketcher.Constraint("Horizontal", 3),
    Sketcher.Constraint("Vertical", 5),
    Sketcher.Constraint("Horizontal", 6),
    Sketcher.Constraint("Vertical", 7),
    Sketcher.Constraint("Horizontal", 8),
    Sketcher.Constraint("Equal", 4, 9),
    Sketcher.Constraint("Horizontal", 4, 3, 9, 3),
    Sketcher.Constraint("Horizontal", 1, 2, 5, 2),
    Sketcher.Constraint("Horizontal", 3, 2, 7, 2),
    Sketcher.Constraint("Equal", 3, 6),
    Sketcher.Constraint("Equal", 8, 0),
    Sketcher.Constraint("Diameter", 4, 3.2),
    Sketcher.Constraint("DistanceX", -1, 1, 4, 3, 100.0),
    Sketcher.Constraint("DistanceY", -1, 1, 4, 3, 12.0),
    Sketcher.Constraint("DistanceX", -1, 1, 9, 3, 4.0),
    Sketcher.Constraint("DistanceX", 5, 2, 0, 2, 96.0),
    Sketcher.Constraint("DistanceX", 1, 1, 1, 2, 5.656854),
    Sketcher.Constraint("DistanceX", -1, 1, 0, 2, 97.171573),
    Sketcher.Constraint("DistanceY", -1, 1, 0, 2, 9.171573),
])
pad7 = body.newObject("PartDesign::Pad", "Pad006")
pad7.Profile = sketch13
pad7.Length = 2

# Sketch on XZ plane
sketch14 = body.newObject("Sketcher::SketchObject", "Sketch013")
sketch14.AttachmentSupport = (doc.getObject("XZ_Plane"), [""])
sketch14.MapMode = "FlatFace"
sketch14.addGeometry([
    Part.LineSegment(V(62, -8, 0), V(42, -8, 0)),  # 0
    Part.LineSegment(V(42, -8, 0), V(42, -27, 0)),  # 1
    Part.LineSegment(V(42, -27, 0), V(14, -27, 0)),  # 2
    Part.LineSegment(V(14, -27, 0), V(14, -37, 0)),  # 3
    Part.LineSegment(V(14, -37, 0), V(42, -37, 0)),  # 4
    Part.LineSegment(V(42, -37, 0), V(42, -56, 0)),  # 5
    Part.LineSegment(V(42, -56, 0), V(62, -56, 0)),  # 6
    Part.LineSegment(V(62, -56, 0), V(62, -37, 0)),  # 7
    Part.LineSegment(V(62, -37, 0), V(90, -37, 0)),  # 8
    Part.LineSegment(V(90, -37, 0), V(90, -27, 0)),  # 9
    Part.LineSegment(V(90, -27, 0), V(62, -27, 0)),  # 10
    Part.LineSegment(V(62, -27, 0), V(62, -8, 0)),  # 11
], False)
sketch14.addConstraint([
    Sketcher.Constraint("Coincident", 0, 2, 1, 1),
    Sketcher.Constraint("Coincident", 1, 2, 2, 1),
    Sketcher.Constraint("Coincident", 2, 2, 3, 1),
    Sketcher.Constraint("Coincident", 3, 2, 4, 1),
    Sketcher.Constraint("Coincident", 4, 2, 5, 1),
    Sketcher.Constraint("Coincident", 5, 2, 6, 1),
    Sketcher.Constraint("Coincident", 6, 2, 7, 1),
    Sketcher.Constraint("Coincident", 7, 2, 8, 1),
    Sketcher.Constraint("Coincident", 8, 2, 9, 1),
    Sketcher.Constraint("Coincident", 9, 2, 10, 1),
    Sketcher.Constraint("Coincident", 10, 2, 11, 1),
    Sketcher.Constraint("Coincident", 11, 2, 0, 1),
    Sketcher.Constraint("Horizontal", 0),
    Sketcher.Constraint("Vertical", 1),
    Sketcher.Constraint("Horizontal", 2),
    Sketcher.Constraint("Vertical", 3),
    Sketcher.Constraint("Horizontal", 4),
    Sketcher.Constraint("Vertical", 5),
    Sketcher.Constraint("Horizontal", 6),
    Sketcher.Constraint("Vertical", 7),
    Sketcher.Constraint("Horizontal", 8),
    Sketcher.Constraint("Vertical", 9),
    Sketcher.Constraint("Horizontal", 10),
    Sketcher.Constraint("Vertical", 11),
    Sketcher.Constraint("Horizontal", 4, 2, 7, 2),
    Sketcher.Constraint("Horizontal", 2, 2, 9, 2),
    Sketcher.Constraint("Vertical", 1, 2, 4, 2),
    Sketcher.Constraint("Vertical", 7, 2, 10, 2),
    Sketcher.Constraint("Equal", 4, 8),
    Sketcher.Constraint("Equal", 1, 5),
    Sketcher.Constraint("DistanceX", 0, 2, 0, 1, 20.0),
    Sketcher.Constraint("DistanceY", 1, 2, 1, 1, 19.0),
    Sketcher.Constraint("DistanceY", 3, 2, 3, 1, 10.0),
    Sketcher.Constraint("DistanceX", 2, 2, 2, 1, 27.5),
    Sketcher.Constraint("DistanceX", -1, 1, 0, 2, 42.0),
    Sketcher.Constraint("DistanceY", 0, 2, -1, 1, 8.0),
])
pocket7 = body.newObject("PartDesign::Pocket", "Pocket006")
pocket7.Profile = sketch14
pocket7.Length = 9

# Sketch on XY plane
sketch15 = body.newObject("Sketcher::SketchObject", "Sketch014")
sketch15.AttachmentSupport = (doc.getObject("XY_Plane"), [""])
sketch15.MapMode = "FlatFace"
sketch15.addGeometry([
    Part.LineSegment(V(-2, 2, 0), V(-2, 0, 0)),  # 0
    Part.LineSegment(V(-2, 0, 0), V(0, 0, 0)),  # 1
    Part.LineSegment(V(0, 0, 0), V(0, 2, 0)),  # 2
    Part.LineSegment(V(0, 2, 0), V(-2, 2, 0)),  # 3
    Part.LineSegment(V(104, 2, 0), V(104, 0, 0)),  # 4
    Part.LineSegment(V(104, 0, 0), V(106, 0, 0)),  # 5
    Part.LineSegment(V(106, 0, 0), V(106, 2, 0)),  # 6
    Part.LineSegment(V(106, 2, 0), V(104, 2, 0)),  # 7
], False)
sketch15.addConstraint([
    Sketcher.Constraint("Coincident", 0, 2, 1, 1),
    Sketcher.Constraint("Coincident", 1, 2, 2, 1),
    Sketcher.Constraint("Coincident", 2, 2, 3, 1),
    Sketcher.Constraint("Coincident", 3, 2, 0, 1),
    Sketcher.Constraint("Coincident", 4, 2, 5, 1),
    Sketcher.Constraint("Coincident", 5, 2, 6, 1),
    Sketcher.Constraint("Coincident", 6, 2, 7, 1),
    Sketcher.Constraint("Coincident", 7, 2, 4, 1),
    Sketcher.Constraint("Vertical", 0),
    Sketcher.Constraint("Horizontal", 1),
    Sketcher.Constraint("Vertical", 2),
    Sketcher.Constraint("Horizontal", 3),
    Sketcher.Constraint("Vertical", 4),
    Sketcher.Constraint("Horizontal", 5),
    Sketcher.Constraint("Vertical", 6),
    Sketcher.Constraint("Horizontal", 7),
    Sketcher.Constraint("Coincident", 1, 2, -1, 1),
    Sketcher.Constraint("PointOnObject", 4, 2, -1),
    Sketcher.Constraint("Horizontal", 3, 2, 6, 2),
    Sketcher.Constraint("Equal", 3, 5),
    Sketcher.Constraint("Equal", 7, 0),
    Sketcher.Constraint("DistanceX", 1, 1, 1, 2, 2.0),
    Sketcher.Constraint("DistanceX", -1, 1, 4, 2, 104.0),
])
pad8 = body.newObject("PartDesign::Pad", "Pad007")
pad8.Profile = sketch15
pad8.Length = 64
pad8.Reversed = True
doc.recompute()

fillet = body.newObject("PartDesign::Fillet", "Fillet")
fillet.Base = (pad8, edges_at(pad8, [
    (42, 1, -37),
    (14.5, 1, -37),
    (14.5, 1, -27),
    (42, 1, -27),
    (42, 1, -8),
    (62, 1, -8),
    (62, 1, -27),
    (89.5, 1, -27),
    (89.5, 1, -37),
    (62, 1, -37),
    (62, 1, -56),
    (42, 1, -56),
]))
fillet.Radius = 2

doc.recompute()
